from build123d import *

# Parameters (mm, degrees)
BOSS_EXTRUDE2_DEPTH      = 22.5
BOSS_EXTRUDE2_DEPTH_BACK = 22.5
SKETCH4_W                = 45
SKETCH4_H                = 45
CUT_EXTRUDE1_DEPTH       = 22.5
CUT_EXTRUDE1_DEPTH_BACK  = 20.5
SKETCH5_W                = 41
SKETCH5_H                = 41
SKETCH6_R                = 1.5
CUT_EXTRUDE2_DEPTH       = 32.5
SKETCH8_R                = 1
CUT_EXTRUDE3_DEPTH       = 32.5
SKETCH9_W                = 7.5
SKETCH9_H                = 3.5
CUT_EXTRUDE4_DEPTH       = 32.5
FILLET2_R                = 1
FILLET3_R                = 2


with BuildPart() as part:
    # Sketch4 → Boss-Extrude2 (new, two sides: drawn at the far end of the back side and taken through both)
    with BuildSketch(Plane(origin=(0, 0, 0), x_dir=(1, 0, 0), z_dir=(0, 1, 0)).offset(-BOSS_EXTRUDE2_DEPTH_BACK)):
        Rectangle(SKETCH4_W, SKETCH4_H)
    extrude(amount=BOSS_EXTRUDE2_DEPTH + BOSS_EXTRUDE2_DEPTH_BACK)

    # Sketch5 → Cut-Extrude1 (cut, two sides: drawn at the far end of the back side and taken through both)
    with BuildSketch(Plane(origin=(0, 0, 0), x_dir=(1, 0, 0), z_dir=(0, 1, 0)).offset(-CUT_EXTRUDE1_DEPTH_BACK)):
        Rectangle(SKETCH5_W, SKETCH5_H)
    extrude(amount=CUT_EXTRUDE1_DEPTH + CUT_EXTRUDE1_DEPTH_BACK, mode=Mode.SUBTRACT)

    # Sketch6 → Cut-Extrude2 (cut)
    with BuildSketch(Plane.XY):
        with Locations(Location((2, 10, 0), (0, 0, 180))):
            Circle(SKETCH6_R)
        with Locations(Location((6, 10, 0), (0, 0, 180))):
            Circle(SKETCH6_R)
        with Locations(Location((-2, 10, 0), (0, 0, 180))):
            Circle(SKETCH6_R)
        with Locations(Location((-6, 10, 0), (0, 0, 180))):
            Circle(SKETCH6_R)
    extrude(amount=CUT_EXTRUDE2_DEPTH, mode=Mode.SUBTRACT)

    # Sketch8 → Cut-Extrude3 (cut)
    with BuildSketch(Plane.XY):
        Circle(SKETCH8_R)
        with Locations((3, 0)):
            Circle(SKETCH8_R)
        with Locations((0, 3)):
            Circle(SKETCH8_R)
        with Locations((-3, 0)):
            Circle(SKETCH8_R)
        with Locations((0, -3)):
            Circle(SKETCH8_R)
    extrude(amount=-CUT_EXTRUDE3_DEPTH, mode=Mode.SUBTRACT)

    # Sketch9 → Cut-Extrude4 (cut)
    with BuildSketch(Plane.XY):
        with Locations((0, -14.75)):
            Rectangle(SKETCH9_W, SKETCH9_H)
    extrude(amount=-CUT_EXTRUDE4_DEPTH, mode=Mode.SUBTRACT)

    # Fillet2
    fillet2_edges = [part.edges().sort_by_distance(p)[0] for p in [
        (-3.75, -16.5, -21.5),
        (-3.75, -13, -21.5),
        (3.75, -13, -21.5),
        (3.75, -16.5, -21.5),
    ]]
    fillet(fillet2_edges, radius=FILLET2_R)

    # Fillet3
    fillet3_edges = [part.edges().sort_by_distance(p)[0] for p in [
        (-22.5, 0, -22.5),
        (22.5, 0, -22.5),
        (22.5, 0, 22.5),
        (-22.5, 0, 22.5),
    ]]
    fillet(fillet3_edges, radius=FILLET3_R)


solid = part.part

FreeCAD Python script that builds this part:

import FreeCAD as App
import Part
import Sketcher
from FreeCAD import Vector
Q = App.Units.Quantity


def edges_at(feature, points):
    """Names of the edges that pass closest to the given points."""
    edges = feature.Shape.Edges
    near = lambda p: min(range(len(edges)), key=lambda i: edges[i].distToShape(Part.Vertex(*p))[0])
    return sorted({f"Edge{near(p) + 1}" for p in points})


def add_polygon(sketch, points):
    """Adds a closed chain of lines whose ends are joined by coincident constraints."""
    first, n = sketch.GeometryCount, len(points)
    for a, b in zip(points, points[1:] + points[:1]):
        sketch.addGeometry(Part.LineSegment(App.Vector(*a, 0), App.Vector(*b, 0)), False)
    for i in range(n):
        sketch.addConstraint(Sketcher.Constraint("Coincident", first + i, 2, first + (i + 1) % n, 1))

doc = App.newDocument("Part")
body = doc.addObject("PartDesign::Body", "Body")

sketch1 = body.newObject("Sketcher::SketchObject", "Sketch")
sketch1.AttachmentSupport = (doc.getObject("XZ_Plane"), [""])
sketch1.MapMode = "FlatFace"
add_polygon(sketch1, [(-22.5, -22.5), (-22.5, 22.5), (22.5, 22.5), (22.5, -22.5)])
sketch1.addConstraint(Sketcher.Constraint("Vertical", 0))
sketch1.addConstraint(Sketcher.Constraint("Horizontal", 1))
sketch1.addConstraint(Sketcher.Constraint("Vertical", 2))
sketch1.addConstraint(Sketcher.Constraint("Horizontal", 3))
sketch1.addConstraint(Sketcher.Constraint("Symmetric", 0, 2, 2, 2, -1, 1))
sketch1.addConstraint(Sketcher.Constraint("Equal", 3, 0))
sketch1.addConstraint(Sketcher.Constraint("DistanceX", 1, 1, 1, 2, Q("45 mm")))
pad1 = body.newObject("PartDesign::Pad", "Pad")
pad1.Profile = sketch1
pad1.Type = "TwoLengths"
pad1.Length = 22.5
pad1.Length2 = 22.5
pad1.Reversed = True

sketch2 = body.newObject("Sketcher::SketchObject", "Sketch001")
sketch2.AttachmentSupport = (doc.getObject("XZ_Plane"), [""])
sketch2.MapMode = "FlatFace"
add_polygon(sketch2, [(-20.5, -20.5), (-20.5, 20.5), (20.5, 20.5), (20.5, -20.5)])
sketch2.addConstraint(Sketcher.Constraint("Vertical", 0))
sketch2.addConstraint(Sketcher.Constraint("Horizontal", 1))
sketch2.addConstraint(Sketcher.Constraint("Vertical", 2))
sketch2.addConstraint(Sketcher.Constraint("Horizontal", 3))
sketch2.addConstraint(Sketcher.Constraint("Symmetric", 0, 2, 2, 2, -1, 1))
sketch2.addConstraint(Sketcher.Constraint("Equal", 3, 0))
sketch2.addConstraint(Sketcher.Constraint("DistanceX", 1, 1, 1, 2, Q("41 mm")))
pocket1 = body.newObject("PartDesign::Pocket", "Pocket")
pocket1.Profile = sketch2
pocket1.Type = "TwoLengths"
pocket1.Length = 22.5
pocket1.Length2 = 20.5

sketch3 = body.newObject("Sketcher::SketchObject", "Sketch002")
sketch3.AttachmentSupport = (doc.getObject("XY_Plane"), [""])
sketch3.MapMode = "FlatFace"
sketch3.addGeometry(Part.Circle(Vector(2, 10, 0), Vector(0, 0, 1), 1.5), False)
sketch3.addGeometry(Part.Circle(Vector(6, 10, 0), Vector(0, 0, 1), 1.5), False)
sketch3.addGeometry(Part.Circle(Vector(-2, 10, 0), Vector(0, 0, 1), 1.5), False)
sketch3.addGeometry(Part.Circle(Vector(-6, 10, 0), Vector(0, 0, 1), 1.5), False)
sketch3.addConstraint(Sketcher.Constraint("Equal", 0, 1))
sketch3.addConstraint(Sketcher.Constraint("Equal", 1, 2))
sketch3.addConstraint(Sketcher.Constraint("Equal", 2, 3))
sketch3.addConstraint(Sketcher.Constraint("Symmetric", 0, 3, 2, 3, -2))
sketch3.addConstraint(Sketcher.Constraint("Symmetric", 1, 3, 3, 3, -2))
sketch3.addConstraint(Sketcher.Constraint("Horizontal", 0, 3, 1, 3))
sketch3.addConstraint(Sketcher.Constraint("Diameter", 0, Q("3 mm")))
sketch3.addConstraint(Sketcher.Constraint("DistanceX", -1, 1, 0, 3, Q("2 mm")))
sketch3.addConstraint(Sketcher.Constraint("DistanceY", -1, 1, 0, 3, Q("10 mm")))
sketch3.addConstraint(Sketcher.Constraint("DistanceX", -1, 1, 1, 3, Q("6 mm")))
pocket2 = body.newObject("PartDesign::Pocket", "Pocket001")
pocket2.Profile = sketch3
pocket2.Length = 32.5
pocket2.Reversed = True

sketch4 = body.newObject("Sketcher::SketchObject", "Sketch003")
sketch4.AttachmentSupport = (doc.getObject("XY_Plane"), [""])
sketch4.MapMode = "FlatFace"
sketch4.addGeometry(Part.Circle(Vector(0, 0, 0), Vector(0, 0, 1), 1), False)
sketch4.addGeometry(Part.Circle(Vector(3, 0, 0), Vector(0, 0, 1), 1), False)
sketch4.addGeometry(Part.Circle(Vector(0, 3, 0), Vector(0, 0, 1), 1), False)
sketch4.addGeometry(Part.Circle(Vector(-3, 0, 0), Vector(0, 0, 1), 1), False)
sketch4.addGeometry(Part.Circle(Vector(0, -3, 0), Vector(0, 0, 1), 1), False)
sketch4.addConstraint(Sketcher.Constraint("Coincident", 0, 3, -1, 1))
sketch4.addConstraint(Sketcher.Constraint("Equal", 0, 1))
sketch4.addConstraint(Sketcher.Constraint("Equal", 1, 2))
sketch4.addConstraint(Sketcher.Constraint("Equal", 2, 3))
sketch4.addConstraint(Sketcher.Constraint("Equal", 3, 4))
sketch4.addConstraint(Sketcher.Constraint("Symmetric", 1, 3, 3, 3, -1, 1))
sketch4.addConstraint(Sketcher.Constraint("Symmetric", 2, 3, 4, 3, -1, 1))
sketch4.addConstraint(Sketcher.Constraint("PointOnObject", 1, 3, -1))
sketch4.addConstraint(Sketcher.Constraint("PointOnObject", 2, 3, -2))
sketch4.addConstraint(Sketcher.Constraint("Diameter", 0, Q("2 mm")))
sketch4.addConstraint(Sketcher.Constraint("DistanceX", -1, 1, 1, 3, Q("3 mm")))
sketch4.addConstraint(Sketcher.Constraint("DistanceY", -1, 1, 2, 3, Q("3 mm")))
pocket3 = body.newObject("PartDesign::Pocket", "Pocket002")
pocket3.Profile = sketch4
pocket3.Length = 32.5

sketch5 = body.newObject("Sketcher::SketchObject", "Sketch004")
sketch5.AttachmentSupport = (doc.getObject("XY_Plane"), [""])
sketch5.MapMode = "FlatFace"
add_polygon(sketch5, [(-3.75, -13), (-3.75, -16.5), (3.75, -16.5), (3.75, -13)])
sketch5.addConstraint(Sketcher.Constraint("Vertical", 0))
sketch5.addConstraint(Sketcher.Constraint("Horizontal", 1))
sketch5.addConstraint(Sketcher.Constraint("Vertical", 2))
sketch5.addConstraint(Sketcher.Constraint("Horizontal", 3))
sketch5.addConstraint(Sketcher.Constraint("DistanceX", 1, 1, 1, 2, Q("7.5 mm")))
sketch5.addConstraint(Sketcher.Constraint("DistanceY", 0, 2, 0, 1, Q("3.5 mm")))
sketch5.addConstraint(Sketcher.Constraint("DistanceY", 2, 2, -1, 1, Q("13 mm")))
sketch5.addConstraint(Sketcher.Constraint("DistanceX", 0, 2, -1, 1, Q("3.75 mm")))
pocket4 = body.newObject("PartDesign::Pocket", "Pocket003")
pocket4.Profile = sketch5
pocket4.Length = 32.5
doc.recompute()

fillet = body.newObject("PartDesign::Fillet", "Fillet")
fillet.Base = (pocket4, edges_at(pocket4, [
    (-3.75, -16.5, -21.5),
    (-3.75, -13, -21.5),
    (3.75, -13, -21.5),
    (3.75, -16.5, -21.5),
]))
fillet.Radius = 1
doc.recompute()

fillet2 = body.newObject("PartDesign::Fillet", "Fillet001")
fillet2.Base = (fillet, edges_at(fillet, [
    (-22.5, 0, -22.5),
    (22.5, 0, -22.5),
    (22.5, 0, 22.5),
    (-22.5, 0, 22.5),
]))
fillet2.Radius = 2

doc.recompute()
